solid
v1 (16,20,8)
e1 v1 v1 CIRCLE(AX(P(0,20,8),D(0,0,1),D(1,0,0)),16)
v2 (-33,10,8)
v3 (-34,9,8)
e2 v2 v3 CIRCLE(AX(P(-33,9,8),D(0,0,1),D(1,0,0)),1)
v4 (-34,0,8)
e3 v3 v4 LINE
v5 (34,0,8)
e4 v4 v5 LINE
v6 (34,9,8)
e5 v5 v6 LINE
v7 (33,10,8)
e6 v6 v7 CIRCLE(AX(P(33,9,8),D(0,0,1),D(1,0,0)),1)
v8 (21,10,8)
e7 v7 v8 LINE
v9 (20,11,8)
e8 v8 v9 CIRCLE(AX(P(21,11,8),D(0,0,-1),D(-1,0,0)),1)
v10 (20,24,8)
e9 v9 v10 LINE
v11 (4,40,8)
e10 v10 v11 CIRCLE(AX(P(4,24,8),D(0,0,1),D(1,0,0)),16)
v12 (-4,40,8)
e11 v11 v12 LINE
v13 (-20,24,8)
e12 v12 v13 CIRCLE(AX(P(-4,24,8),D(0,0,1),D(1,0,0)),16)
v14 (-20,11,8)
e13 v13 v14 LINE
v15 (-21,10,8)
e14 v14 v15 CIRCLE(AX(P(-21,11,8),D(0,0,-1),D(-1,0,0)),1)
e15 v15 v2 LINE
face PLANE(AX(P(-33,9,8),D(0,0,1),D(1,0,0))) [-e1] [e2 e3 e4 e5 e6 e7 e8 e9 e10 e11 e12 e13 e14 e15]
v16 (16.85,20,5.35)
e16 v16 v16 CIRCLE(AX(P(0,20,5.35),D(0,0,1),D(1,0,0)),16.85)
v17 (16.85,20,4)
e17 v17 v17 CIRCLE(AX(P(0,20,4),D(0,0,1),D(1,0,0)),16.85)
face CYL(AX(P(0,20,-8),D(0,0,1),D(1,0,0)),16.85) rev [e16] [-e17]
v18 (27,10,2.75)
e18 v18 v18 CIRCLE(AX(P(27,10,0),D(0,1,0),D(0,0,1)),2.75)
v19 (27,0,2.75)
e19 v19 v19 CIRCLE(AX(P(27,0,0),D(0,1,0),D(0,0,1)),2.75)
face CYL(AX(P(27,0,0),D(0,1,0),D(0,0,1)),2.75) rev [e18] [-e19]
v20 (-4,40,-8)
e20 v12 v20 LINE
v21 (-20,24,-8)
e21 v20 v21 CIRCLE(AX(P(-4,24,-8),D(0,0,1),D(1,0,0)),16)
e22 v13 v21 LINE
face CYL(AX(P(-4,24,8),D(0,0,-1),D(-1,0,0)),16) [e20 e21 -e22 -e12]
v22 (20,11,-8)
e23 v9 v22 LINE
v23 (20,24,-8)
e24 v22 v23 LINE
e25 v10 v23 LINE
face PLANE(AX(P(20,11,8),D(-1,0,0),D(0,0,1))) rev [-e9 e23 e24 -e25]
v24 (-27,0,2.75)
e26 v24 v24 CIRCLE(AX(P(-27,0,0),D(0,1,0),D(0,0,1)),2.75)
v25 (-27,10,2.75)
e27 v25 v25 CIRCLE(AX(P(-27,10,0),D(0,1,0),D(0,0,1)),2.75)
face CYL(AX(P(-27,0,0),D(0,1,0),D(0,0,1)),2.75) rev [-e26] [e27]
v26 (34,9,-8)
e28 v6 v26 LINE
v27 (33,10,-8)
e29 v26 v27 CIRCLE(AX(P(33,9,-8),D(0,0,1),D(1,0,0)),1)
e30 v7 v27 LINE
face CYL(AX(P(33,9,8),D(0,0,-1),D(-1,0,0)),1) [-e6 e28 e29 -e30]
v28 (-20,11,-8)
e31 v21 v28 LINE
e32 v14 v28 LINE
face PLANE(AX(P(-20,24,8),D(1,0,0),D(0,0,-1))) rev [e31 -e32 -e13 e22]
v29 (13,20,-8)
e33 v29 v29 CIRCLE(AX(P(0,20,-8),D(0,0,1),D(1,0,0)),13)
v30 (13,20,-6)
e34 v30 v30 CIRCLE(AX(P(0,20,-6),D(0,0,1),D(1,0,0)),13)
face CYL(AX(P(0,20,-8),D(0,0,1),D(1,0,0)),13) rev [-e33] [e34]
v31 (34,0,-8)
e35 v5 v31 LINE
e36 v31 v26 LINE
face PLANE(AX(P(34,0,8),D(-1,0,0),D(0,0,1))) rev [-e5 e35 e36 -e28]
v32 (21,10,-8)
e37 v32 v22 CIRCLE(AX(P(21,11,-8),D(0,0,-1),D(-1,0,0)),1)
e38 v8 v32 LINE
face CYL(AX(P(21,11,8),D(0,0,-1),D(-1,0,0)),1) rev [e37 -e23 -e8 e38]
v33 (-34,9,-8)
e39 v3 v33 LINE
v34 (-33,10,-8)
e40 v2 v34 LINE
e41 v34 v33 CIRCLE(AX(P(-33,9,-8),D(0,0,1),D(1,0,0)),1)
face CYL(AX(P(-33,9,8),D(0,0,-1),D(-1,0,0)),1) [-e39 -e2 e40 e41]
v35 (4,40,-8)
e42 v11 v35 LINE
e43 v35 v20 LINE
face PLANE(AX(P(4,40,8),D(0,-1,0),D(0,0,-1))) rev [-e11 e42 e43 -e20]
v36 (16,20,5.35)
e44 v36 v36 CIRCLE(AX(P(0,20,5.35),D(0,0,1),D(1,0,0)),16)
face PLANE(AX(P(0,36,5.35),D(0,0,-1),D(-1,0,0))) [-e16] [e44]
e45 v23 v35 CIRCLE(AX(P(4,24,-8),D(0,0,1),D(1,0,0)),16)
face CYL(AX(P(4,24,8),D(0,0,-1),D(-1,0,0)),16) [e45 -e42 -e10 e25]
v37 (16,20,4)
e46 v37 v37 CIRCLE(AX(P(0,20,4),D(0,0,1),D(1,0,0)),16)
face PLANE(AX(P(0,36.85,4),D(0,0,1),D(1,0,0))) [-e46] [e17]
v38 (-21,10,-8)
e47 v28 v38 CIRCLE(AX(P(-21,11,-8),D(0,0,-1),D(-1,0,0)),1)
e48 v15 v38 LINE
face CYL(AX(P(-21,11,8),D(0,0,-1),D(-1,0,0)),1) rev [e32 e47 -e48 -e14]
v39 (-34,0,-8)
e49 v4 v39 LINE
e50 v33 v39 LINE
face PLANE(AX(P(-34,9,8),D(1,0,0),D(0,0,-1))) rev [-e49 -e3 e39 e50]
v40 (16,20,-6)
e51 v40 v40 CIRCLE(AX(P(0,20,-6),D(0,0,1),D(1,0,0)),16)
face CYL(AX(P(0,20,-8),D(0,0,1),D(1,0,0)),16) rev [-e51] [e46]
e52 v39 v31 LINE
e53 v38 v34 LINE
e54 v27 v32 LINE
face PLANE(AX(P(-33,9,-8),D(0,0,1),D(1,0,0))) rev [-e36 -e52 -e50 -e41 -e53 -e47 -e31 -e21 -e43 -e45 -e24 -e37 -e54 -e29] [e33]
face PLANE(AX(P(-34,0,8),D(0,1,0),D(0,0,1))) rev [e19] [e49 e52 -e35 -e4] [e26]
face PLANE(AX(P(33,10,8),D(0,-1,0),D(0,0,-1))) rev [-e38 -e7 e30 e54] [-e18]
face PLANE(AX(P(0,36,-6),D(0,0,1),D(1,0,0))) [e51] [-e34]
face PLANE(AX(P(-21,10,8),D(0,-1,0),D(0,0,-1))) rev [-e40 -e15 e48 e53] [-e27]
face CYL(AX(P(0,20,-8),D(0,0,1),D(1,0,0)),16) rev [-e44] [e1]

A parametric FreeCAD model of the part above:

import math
import FreeCAD as App
import Part
import Sketcher
Q = App.Units.Quantity

doc = App.newDocument("Part")
body = doc.addObject("PartDesign::Body", "Body")

# Sketch on XY plane
sketch1 = body.newObject("Sketcher::SketchObject", "Sketch")
sketch1.AttachmentSupport = (doc.getObject("XY_Plane"), [""])
sketch1.MapMode = "FlatFace"
sketch1.addGeometry([
    Part.LineSegment(App.Vector(-34, 9, 0), App.Vector(-34, 0, 0)),  # 0
    Part.LineSegment(App.Vector(-34, 0, 0), App.Vector(34, 0, 0)),  # 1
    Part.LineSegment(App.Vector(34, 0, 0), App.Vector(34, 9, 0)),  # 2
    Part.ArcOfCircle(Part.Circle(App.Vector(33, 9, 0), App.Vector(0, 0, 1), 1), math.radians(0), math.radians(90)),  # 3
    Part.LineSegment(App.Vector(33, 10, 0), App.Vector(21, 10, 0)),  # 4
    Part.ArcOfCircle(Part.Circle(App.Vector(21, 11, 0), App.Vector(0, 0, 1), 1), math.radians(-180), math.radians(-90)),  # 5
    Part.LineSegment(App.Vector(20, 11, 0), App.Vector(20, 24, 0)),  # 6
    Part.ArcOfCircle(Part.Circle(App.Vector(4, 24, 0), App.Vector(0, 0, 1), 16), math.radians(0), math.radians(90)),  # 7
    Part.LineSegment(App.Vector(4, 40, 0), App.Vector(-4, 40, 0)),  # 8
    Part.ArcOfCircle(Part.Circle(App.Vector(-4, 24, 0), App.Vector(0, 0, 1), 16), math.radians(90), math.radians(180)),  # 9
    Part.LineSegment(App.Vector(-20, 24, 0), App.Vector(-20, 11, 0)),  # 10
    Part.ArcOfCircle(Part.Circle(App.Vector(-21, 11, 0), App.Vector(0, 0, 1), 1), math.radians(-90), math.radians(0)),  # 11
    Part.LineSegment(App.Vector(-21, 10, 0), App.Vector(-33, 10, 0)),  # 12
    Part.ArcOfCircle(Part.Circle(App.Vector(-33, 9, 0), App.Vector(0, 0, 1), 1), math.radians(90), math.radians(180)),  # 13
], False)
sketch1.addConstraint([
    Sketcher.Constraint("Coincident", 0, 2, 1, 1),
    Sketcher.Constraint("Coincident", 1, 2, 2, 1),
    Sketcher.Constraint("Tangent", 2, 2, 3, 1),
    Sketcher.Constraint("Tangent", 3, 2, 4, 1),
    Sketcher.Constraint("Tangent", 4, 2, 5, 2),
    Sketcher.Constraint("Tangent", 5, 1, 6, 1),
    Sketcher.Constraint("Tangent", 6, 2, 7, 1),
    Sketcher.Constraint("Tangent", 7, 2, 8, 1),
    Sketcher.Constraint("Tangent", 8, 2, 9, 1),
    Sketcher.Constraint("Tangent", 9, 2, 10, 1),
    Sketcher.Constraint("Tangent", 10, 2, 11, 2),
    Sketcher.Constraint("Tangent", 11, 1, 12, 1),
    Sketcher.Constraint("Tangent", 12, 2, 13, 1),
    Sketcher.Constraint("Tangent", 13, 2, 0, 1),
    Sketcher.Constraint("Vertical", 0),
    Sketcher.Constraint("Horizontal", 1),
    Sketcher.Constraint("Vertical", 2),
    Sketcher.Constraint("Horizontal", 4),
    Sketcher.Constraint("Vertical", 6),
    Sketcher.Constraint("Horizontal", 8),
    Sketcher.Constraint("Vertical", 10),
    Sketcher.Constraint("Horizontal", 12),
    Sketcher.Constraint("Equal", 3, 5),
    Sketcher.Constraint("Equal", 7, 9),
    Sketcher.Constraint("Equal", 5, 11),
    Sketcher.Constraint("Equal", 11, 13),
    Sketcher.Constraint("Symmetric", 0, 2, 1, 2, -1, 1),
    Sketcher.Constraint("Symmetric", 5, 3, 11, 3, -2),
    Sketcher.Constraint("Radius", 3, Q("1 mm")),
    Sketcher.Constraint("Radius", 7, Q("16 mm")),
    Sketcher.Constraint("DistanceX", 1, 1, 1, 2, Q("68 mm")),
    Sketcher.Constraint("DistanceX", 4, 2, 4, 1, Q("12 mm")),
    Sketcher.Constraint("DistanceY", 0, 2, 0, 1, Q("9 mm")),
    Sketcher.Constraint("DistanceY", 6, 1, 6, 2, Q("13 mm")),
])
pad1 = body.newObject("PartDesign::Pad", "Pad")
pad1.Profile = sketch1
pad1.Type = "TwoLengths"
pad1.Length = 8
pad1.Length2 = 8

# Sketch on YZ plane
sketch2 = body.newObject("Sketcher::SketchObject", "Sketch001")
sketch2.AttachmentSupport = (doc.getObject("YZ_Plane"), [""])
sketch2.MapMode = "FlatFace"
sketch2.addGeometry([
    Part.LineSegment(App.Vector(36, 8, 0), App.Vector(20, 8, 0)),  # 0
    Part.LineSegment(App.Vector(20, 8, 0), App.Vector(20, -8, 0)),  # 1
    Part.LineSegment(App.Vector(20, -8, 0), App.Vector(33, -8, 0)),  # 2
    Part.LineSegment(App.Vector(33, -8, 0), App.Vector(33, -6, 0)),  # 3
    Part.LineSegment(App.Vector(33, -6, 0), App.Vector(36, -6, 0)),  # 4
    Part.LineSegment(App.Vector(36, -6, 0), App.Vector(36, 4, 0)),  # 5
    Part.LineSegment(App.Vector(36, 4, 0), App.Vector(36.85, 4, 0)),  # 6
    Part.LineSegment(App.Vector(36.85, 4, 0), App.Vector(36.85, 5.35, 0)),  # 7
    Part.LineSegment(App.Vector(36.85, 5.35, 0), App.Vector(36, 5.35, 0)),  # 8
    Part.LineSegment(App.Vector(36, 5.35, 0), App.Vector(36, 8, 0)),  # 9
], False)
sketch2.addGeometry(Part.LineSegment(App.Vector(20, -8, 0), App.Vector(20, 8, 0)), True)  # axis
sketch2.addConstraint([
    Sketcher.Constraint("Coincident", 0, 2, 1, 1),
    Sketcher.Constraint("Coincident", 1, 2, 2, 1),
    Sketcher.Constraint("Coincident", 2, 2, 3, 1),
    Sketcher.Constraint("Coincident", 3, 2, 4, 1),
    Sketcher.Constraint("Coincident", 4, 2, 5, 1),
    Sketcher.Constraint("Coincident", 5, 2, 6, 1),
    Sketcher.Constraint("Coincident", 6, 2, 7, 1),
    Sketcher.Constraint("Coincident", 7, 2, 8, 1),
    Sketcher.Constraint("Coincident", 8, 2, 9, 1),
    Sketcher.Constraint("Coincident", 9, 2, 0, 1),
    Sketcher.Constraint("Horizontal", 0),
    Sketcher.Constraint("Vertical", 1),
    Sketcher.Constraint("Horizontal", 2),
    Sketcher.Constraint("Vertical", 3),
    Sketcher.Constraint("Horizontal", 4),
    Sketcher.Constraint("Vertical", 5),
    Sketcher.Constraint("Horizontal", 6),
    Sketcher.Constraint("Vertical", 7),
    Sketcher.Constraint("Horizontal", 8),
    Sketcher.Constraint("Vertical", 9),
    Sketcher.Constraint("Vertical", 10),
    Sketcher.Constraint("Coincident", 10, 1, 1, 2),
    Sketcher.Constraint("Horizontal", 9, 2, 10, 2),
    Sketcher.Constraint("Vertical", 5, 2, 8, 2),
    Sketcher.Constraint("Equal", 0, 1),
    Sketcher.Constraint("DistanceX", 0, 2, 0, 1, Q("16 mm")),
    Sketcher.Constraint("DistanceX", 2, 1, 2, 2, Q("13 mm")),
    Sketcher.Constraint("DistanceY", 3, 1, 3, 2, Q("2 mm")),
    Sketcher.Constraint("DistanceY", 5, 1, 5, 2, Q("10 mm")),
    Sketcher.Constraint("DistanceX", -1, 1, 0, 2, Q("20 mm")),
    Sketcher.Constraint("DistanceY", -1, 1, 0, 2, Q("8 mm")),
    Sketcher.Constraint("DistanceX", 6, 1, 6, 2, Q("0.85 mm")),
    Sketcher.Constraint("DistanceY", 7, 1, 7, 2, Q("1.35 mm")),
])
groove = body.newObject("PartDesign::Groove", "Groove")
groove.Profile = sketch2
groove.ReferenceAxis = (sketch2, ["Axis0"])
groove.Angle = 360

# Sketch on XY plane
sketch3 = body.newObject("Sketcher::SketchObject", "Sketch002")
sketch3.AttachmentSupport = (doc.getObject("XY_Plane"), [""])
sketch3.MapMode = "FlatFace"
sketch3.addGeometry([
    Part.LineSegment(App.Vector(27, 10, 0), App.Vector(27, 0, 0)),
    Part.LineSegment(App.Vector(27, 0, 0), App.Vector(29.75, 0, 0)),
    Part.LineSegment(App.Vector(29.75, 0, 0), App.Vector(29.75, 10, 0)),
    Part.LineSegment(App.Vector(29.75, 10, 0), App.Vector(27, 10, 0)),
], False)
sketch3.addGeometry(Part.LineSegment(App.Vector(27, 0, 0), App.Vector(27, 10, 0)), True)  # axis
sketch3.addConstraint([
    Sketcher.Constraint("Coincident", 0, 2, 1, 1),
    Sketcher.Constraint("Coincident", 1, 2, 2, 1),
    Sketcher.Constraint("Coincident", 2, 2, 3, 1),
    Sketcher.Constraint("Coincident", 3, 2, 0, 1),
    Sketcher.Constraint("Vertical", 0),
    Sketcher.Constraint("Horizontal", 1),
    Sketcher.Constraint("Vertical", 2),
    Sketcher.Constraint("Horizontal", 3),
    Sketcher.Constraint("Vertical", 4),
    Sketcher.Constraint("Coincident", 4, 1, 0, 2),
    Sketcher.Constraint("PointOnObject", 0, 2, -1),
    Sketcher.Constraint("Horizontal", 2, 2, 4, 2),
    Sketcher.Constraint("DistanceY", 0, 2, 0, 1, Q("10 mm")),
    Sketcher.Constraint("DistanceX", -1, 1, 0, 2, Q("27 mm")),
    Sketcher.Constraint("DistanceX", 1, 1, 1, 2, Q("2.75 mm")),
])
groove2 = body.newObject("PartDesign::Groove", "Groove001")
groove2.Profile = sketch3
groove2.ReferenceAxis = (sketch3, ["Axis0"])
groove2.Angle = 360

# Sketch on XY plane
sketch4 = body.newObject("Sketcher::SketchObject", "Sketch003")
sketch4.AttachmentSupport = (doc.getObject("XY_Plane"), [""])
sketch4.MapMode = "FlatFace"
sketch4.addGeometry([
    Part.LineSegment(App.Vector(-27, 10, 0), App.Vector(-27, 0, 0)),
    Part.LineSegment(App.Vector(-27, 0, 0), App.Vector(-24.25, 0, 0)),
    Part.LineSegment(App.Vector(-24.25, 0, 0), App.Vector(-24.25, 10, 0)),
    Part.LineSegment(App.Vector(-24.25, 10, 0), App.Vector(-27, 10, 0)),
], False)
sketch4.addGeometry(Part.LineSegment(App.Vector(-27, 0, 0), App.Vector(-27, 10, 0)), True)  # axis
sketch4.addConstraint([
    Sketcher.Constraint("Coincident", 0, 2, 1, 1),
    Sketcher.Constraint("Coincident", 1, 2, 2, 1),
    Sketcher.Constraint("Coincident", 2, 2, 3, 1),
    Sketcher.Constraint("Coincident", 3, 2, 0, 1),
    Sketcher.Constraint("Vertical", 0),
    Sketcher.Constraint("Horizontal", 1),
    Sketcher.Constraint("Vertical", 2),
    Sketcher.Constraint("Horizontal", 3),
    Sketcher.Constraint("Vertical", 4),
    Sketcher.Constraint("Coincident", 4, 1, 0, 2),
    Sketcher.Constraint("PointOnObject", 0, 2, -1),
    Sketcher.Constraint("Horizontal", 2, 2, 4, 2),
    Sketcher.Constraint("DistanceY", 0, 2, 0, 1, Q("10 mm")),
    Sketcher.Constraint("DistanceX", 0, 2, -1, 1, Q("27 mm")),
    Sketcher.Constraint("DistanceX", 1, 1, 1, 2, Q("2.75 mm")),
])
groove3 = body.newObject("PartDesign::Groove", "Groove002")
groove3.Profile = sketch4
groove3.ReferenceAxis = (sketch4, ["Axis0"])
groove3.Angle = 360

doc.recompute()
